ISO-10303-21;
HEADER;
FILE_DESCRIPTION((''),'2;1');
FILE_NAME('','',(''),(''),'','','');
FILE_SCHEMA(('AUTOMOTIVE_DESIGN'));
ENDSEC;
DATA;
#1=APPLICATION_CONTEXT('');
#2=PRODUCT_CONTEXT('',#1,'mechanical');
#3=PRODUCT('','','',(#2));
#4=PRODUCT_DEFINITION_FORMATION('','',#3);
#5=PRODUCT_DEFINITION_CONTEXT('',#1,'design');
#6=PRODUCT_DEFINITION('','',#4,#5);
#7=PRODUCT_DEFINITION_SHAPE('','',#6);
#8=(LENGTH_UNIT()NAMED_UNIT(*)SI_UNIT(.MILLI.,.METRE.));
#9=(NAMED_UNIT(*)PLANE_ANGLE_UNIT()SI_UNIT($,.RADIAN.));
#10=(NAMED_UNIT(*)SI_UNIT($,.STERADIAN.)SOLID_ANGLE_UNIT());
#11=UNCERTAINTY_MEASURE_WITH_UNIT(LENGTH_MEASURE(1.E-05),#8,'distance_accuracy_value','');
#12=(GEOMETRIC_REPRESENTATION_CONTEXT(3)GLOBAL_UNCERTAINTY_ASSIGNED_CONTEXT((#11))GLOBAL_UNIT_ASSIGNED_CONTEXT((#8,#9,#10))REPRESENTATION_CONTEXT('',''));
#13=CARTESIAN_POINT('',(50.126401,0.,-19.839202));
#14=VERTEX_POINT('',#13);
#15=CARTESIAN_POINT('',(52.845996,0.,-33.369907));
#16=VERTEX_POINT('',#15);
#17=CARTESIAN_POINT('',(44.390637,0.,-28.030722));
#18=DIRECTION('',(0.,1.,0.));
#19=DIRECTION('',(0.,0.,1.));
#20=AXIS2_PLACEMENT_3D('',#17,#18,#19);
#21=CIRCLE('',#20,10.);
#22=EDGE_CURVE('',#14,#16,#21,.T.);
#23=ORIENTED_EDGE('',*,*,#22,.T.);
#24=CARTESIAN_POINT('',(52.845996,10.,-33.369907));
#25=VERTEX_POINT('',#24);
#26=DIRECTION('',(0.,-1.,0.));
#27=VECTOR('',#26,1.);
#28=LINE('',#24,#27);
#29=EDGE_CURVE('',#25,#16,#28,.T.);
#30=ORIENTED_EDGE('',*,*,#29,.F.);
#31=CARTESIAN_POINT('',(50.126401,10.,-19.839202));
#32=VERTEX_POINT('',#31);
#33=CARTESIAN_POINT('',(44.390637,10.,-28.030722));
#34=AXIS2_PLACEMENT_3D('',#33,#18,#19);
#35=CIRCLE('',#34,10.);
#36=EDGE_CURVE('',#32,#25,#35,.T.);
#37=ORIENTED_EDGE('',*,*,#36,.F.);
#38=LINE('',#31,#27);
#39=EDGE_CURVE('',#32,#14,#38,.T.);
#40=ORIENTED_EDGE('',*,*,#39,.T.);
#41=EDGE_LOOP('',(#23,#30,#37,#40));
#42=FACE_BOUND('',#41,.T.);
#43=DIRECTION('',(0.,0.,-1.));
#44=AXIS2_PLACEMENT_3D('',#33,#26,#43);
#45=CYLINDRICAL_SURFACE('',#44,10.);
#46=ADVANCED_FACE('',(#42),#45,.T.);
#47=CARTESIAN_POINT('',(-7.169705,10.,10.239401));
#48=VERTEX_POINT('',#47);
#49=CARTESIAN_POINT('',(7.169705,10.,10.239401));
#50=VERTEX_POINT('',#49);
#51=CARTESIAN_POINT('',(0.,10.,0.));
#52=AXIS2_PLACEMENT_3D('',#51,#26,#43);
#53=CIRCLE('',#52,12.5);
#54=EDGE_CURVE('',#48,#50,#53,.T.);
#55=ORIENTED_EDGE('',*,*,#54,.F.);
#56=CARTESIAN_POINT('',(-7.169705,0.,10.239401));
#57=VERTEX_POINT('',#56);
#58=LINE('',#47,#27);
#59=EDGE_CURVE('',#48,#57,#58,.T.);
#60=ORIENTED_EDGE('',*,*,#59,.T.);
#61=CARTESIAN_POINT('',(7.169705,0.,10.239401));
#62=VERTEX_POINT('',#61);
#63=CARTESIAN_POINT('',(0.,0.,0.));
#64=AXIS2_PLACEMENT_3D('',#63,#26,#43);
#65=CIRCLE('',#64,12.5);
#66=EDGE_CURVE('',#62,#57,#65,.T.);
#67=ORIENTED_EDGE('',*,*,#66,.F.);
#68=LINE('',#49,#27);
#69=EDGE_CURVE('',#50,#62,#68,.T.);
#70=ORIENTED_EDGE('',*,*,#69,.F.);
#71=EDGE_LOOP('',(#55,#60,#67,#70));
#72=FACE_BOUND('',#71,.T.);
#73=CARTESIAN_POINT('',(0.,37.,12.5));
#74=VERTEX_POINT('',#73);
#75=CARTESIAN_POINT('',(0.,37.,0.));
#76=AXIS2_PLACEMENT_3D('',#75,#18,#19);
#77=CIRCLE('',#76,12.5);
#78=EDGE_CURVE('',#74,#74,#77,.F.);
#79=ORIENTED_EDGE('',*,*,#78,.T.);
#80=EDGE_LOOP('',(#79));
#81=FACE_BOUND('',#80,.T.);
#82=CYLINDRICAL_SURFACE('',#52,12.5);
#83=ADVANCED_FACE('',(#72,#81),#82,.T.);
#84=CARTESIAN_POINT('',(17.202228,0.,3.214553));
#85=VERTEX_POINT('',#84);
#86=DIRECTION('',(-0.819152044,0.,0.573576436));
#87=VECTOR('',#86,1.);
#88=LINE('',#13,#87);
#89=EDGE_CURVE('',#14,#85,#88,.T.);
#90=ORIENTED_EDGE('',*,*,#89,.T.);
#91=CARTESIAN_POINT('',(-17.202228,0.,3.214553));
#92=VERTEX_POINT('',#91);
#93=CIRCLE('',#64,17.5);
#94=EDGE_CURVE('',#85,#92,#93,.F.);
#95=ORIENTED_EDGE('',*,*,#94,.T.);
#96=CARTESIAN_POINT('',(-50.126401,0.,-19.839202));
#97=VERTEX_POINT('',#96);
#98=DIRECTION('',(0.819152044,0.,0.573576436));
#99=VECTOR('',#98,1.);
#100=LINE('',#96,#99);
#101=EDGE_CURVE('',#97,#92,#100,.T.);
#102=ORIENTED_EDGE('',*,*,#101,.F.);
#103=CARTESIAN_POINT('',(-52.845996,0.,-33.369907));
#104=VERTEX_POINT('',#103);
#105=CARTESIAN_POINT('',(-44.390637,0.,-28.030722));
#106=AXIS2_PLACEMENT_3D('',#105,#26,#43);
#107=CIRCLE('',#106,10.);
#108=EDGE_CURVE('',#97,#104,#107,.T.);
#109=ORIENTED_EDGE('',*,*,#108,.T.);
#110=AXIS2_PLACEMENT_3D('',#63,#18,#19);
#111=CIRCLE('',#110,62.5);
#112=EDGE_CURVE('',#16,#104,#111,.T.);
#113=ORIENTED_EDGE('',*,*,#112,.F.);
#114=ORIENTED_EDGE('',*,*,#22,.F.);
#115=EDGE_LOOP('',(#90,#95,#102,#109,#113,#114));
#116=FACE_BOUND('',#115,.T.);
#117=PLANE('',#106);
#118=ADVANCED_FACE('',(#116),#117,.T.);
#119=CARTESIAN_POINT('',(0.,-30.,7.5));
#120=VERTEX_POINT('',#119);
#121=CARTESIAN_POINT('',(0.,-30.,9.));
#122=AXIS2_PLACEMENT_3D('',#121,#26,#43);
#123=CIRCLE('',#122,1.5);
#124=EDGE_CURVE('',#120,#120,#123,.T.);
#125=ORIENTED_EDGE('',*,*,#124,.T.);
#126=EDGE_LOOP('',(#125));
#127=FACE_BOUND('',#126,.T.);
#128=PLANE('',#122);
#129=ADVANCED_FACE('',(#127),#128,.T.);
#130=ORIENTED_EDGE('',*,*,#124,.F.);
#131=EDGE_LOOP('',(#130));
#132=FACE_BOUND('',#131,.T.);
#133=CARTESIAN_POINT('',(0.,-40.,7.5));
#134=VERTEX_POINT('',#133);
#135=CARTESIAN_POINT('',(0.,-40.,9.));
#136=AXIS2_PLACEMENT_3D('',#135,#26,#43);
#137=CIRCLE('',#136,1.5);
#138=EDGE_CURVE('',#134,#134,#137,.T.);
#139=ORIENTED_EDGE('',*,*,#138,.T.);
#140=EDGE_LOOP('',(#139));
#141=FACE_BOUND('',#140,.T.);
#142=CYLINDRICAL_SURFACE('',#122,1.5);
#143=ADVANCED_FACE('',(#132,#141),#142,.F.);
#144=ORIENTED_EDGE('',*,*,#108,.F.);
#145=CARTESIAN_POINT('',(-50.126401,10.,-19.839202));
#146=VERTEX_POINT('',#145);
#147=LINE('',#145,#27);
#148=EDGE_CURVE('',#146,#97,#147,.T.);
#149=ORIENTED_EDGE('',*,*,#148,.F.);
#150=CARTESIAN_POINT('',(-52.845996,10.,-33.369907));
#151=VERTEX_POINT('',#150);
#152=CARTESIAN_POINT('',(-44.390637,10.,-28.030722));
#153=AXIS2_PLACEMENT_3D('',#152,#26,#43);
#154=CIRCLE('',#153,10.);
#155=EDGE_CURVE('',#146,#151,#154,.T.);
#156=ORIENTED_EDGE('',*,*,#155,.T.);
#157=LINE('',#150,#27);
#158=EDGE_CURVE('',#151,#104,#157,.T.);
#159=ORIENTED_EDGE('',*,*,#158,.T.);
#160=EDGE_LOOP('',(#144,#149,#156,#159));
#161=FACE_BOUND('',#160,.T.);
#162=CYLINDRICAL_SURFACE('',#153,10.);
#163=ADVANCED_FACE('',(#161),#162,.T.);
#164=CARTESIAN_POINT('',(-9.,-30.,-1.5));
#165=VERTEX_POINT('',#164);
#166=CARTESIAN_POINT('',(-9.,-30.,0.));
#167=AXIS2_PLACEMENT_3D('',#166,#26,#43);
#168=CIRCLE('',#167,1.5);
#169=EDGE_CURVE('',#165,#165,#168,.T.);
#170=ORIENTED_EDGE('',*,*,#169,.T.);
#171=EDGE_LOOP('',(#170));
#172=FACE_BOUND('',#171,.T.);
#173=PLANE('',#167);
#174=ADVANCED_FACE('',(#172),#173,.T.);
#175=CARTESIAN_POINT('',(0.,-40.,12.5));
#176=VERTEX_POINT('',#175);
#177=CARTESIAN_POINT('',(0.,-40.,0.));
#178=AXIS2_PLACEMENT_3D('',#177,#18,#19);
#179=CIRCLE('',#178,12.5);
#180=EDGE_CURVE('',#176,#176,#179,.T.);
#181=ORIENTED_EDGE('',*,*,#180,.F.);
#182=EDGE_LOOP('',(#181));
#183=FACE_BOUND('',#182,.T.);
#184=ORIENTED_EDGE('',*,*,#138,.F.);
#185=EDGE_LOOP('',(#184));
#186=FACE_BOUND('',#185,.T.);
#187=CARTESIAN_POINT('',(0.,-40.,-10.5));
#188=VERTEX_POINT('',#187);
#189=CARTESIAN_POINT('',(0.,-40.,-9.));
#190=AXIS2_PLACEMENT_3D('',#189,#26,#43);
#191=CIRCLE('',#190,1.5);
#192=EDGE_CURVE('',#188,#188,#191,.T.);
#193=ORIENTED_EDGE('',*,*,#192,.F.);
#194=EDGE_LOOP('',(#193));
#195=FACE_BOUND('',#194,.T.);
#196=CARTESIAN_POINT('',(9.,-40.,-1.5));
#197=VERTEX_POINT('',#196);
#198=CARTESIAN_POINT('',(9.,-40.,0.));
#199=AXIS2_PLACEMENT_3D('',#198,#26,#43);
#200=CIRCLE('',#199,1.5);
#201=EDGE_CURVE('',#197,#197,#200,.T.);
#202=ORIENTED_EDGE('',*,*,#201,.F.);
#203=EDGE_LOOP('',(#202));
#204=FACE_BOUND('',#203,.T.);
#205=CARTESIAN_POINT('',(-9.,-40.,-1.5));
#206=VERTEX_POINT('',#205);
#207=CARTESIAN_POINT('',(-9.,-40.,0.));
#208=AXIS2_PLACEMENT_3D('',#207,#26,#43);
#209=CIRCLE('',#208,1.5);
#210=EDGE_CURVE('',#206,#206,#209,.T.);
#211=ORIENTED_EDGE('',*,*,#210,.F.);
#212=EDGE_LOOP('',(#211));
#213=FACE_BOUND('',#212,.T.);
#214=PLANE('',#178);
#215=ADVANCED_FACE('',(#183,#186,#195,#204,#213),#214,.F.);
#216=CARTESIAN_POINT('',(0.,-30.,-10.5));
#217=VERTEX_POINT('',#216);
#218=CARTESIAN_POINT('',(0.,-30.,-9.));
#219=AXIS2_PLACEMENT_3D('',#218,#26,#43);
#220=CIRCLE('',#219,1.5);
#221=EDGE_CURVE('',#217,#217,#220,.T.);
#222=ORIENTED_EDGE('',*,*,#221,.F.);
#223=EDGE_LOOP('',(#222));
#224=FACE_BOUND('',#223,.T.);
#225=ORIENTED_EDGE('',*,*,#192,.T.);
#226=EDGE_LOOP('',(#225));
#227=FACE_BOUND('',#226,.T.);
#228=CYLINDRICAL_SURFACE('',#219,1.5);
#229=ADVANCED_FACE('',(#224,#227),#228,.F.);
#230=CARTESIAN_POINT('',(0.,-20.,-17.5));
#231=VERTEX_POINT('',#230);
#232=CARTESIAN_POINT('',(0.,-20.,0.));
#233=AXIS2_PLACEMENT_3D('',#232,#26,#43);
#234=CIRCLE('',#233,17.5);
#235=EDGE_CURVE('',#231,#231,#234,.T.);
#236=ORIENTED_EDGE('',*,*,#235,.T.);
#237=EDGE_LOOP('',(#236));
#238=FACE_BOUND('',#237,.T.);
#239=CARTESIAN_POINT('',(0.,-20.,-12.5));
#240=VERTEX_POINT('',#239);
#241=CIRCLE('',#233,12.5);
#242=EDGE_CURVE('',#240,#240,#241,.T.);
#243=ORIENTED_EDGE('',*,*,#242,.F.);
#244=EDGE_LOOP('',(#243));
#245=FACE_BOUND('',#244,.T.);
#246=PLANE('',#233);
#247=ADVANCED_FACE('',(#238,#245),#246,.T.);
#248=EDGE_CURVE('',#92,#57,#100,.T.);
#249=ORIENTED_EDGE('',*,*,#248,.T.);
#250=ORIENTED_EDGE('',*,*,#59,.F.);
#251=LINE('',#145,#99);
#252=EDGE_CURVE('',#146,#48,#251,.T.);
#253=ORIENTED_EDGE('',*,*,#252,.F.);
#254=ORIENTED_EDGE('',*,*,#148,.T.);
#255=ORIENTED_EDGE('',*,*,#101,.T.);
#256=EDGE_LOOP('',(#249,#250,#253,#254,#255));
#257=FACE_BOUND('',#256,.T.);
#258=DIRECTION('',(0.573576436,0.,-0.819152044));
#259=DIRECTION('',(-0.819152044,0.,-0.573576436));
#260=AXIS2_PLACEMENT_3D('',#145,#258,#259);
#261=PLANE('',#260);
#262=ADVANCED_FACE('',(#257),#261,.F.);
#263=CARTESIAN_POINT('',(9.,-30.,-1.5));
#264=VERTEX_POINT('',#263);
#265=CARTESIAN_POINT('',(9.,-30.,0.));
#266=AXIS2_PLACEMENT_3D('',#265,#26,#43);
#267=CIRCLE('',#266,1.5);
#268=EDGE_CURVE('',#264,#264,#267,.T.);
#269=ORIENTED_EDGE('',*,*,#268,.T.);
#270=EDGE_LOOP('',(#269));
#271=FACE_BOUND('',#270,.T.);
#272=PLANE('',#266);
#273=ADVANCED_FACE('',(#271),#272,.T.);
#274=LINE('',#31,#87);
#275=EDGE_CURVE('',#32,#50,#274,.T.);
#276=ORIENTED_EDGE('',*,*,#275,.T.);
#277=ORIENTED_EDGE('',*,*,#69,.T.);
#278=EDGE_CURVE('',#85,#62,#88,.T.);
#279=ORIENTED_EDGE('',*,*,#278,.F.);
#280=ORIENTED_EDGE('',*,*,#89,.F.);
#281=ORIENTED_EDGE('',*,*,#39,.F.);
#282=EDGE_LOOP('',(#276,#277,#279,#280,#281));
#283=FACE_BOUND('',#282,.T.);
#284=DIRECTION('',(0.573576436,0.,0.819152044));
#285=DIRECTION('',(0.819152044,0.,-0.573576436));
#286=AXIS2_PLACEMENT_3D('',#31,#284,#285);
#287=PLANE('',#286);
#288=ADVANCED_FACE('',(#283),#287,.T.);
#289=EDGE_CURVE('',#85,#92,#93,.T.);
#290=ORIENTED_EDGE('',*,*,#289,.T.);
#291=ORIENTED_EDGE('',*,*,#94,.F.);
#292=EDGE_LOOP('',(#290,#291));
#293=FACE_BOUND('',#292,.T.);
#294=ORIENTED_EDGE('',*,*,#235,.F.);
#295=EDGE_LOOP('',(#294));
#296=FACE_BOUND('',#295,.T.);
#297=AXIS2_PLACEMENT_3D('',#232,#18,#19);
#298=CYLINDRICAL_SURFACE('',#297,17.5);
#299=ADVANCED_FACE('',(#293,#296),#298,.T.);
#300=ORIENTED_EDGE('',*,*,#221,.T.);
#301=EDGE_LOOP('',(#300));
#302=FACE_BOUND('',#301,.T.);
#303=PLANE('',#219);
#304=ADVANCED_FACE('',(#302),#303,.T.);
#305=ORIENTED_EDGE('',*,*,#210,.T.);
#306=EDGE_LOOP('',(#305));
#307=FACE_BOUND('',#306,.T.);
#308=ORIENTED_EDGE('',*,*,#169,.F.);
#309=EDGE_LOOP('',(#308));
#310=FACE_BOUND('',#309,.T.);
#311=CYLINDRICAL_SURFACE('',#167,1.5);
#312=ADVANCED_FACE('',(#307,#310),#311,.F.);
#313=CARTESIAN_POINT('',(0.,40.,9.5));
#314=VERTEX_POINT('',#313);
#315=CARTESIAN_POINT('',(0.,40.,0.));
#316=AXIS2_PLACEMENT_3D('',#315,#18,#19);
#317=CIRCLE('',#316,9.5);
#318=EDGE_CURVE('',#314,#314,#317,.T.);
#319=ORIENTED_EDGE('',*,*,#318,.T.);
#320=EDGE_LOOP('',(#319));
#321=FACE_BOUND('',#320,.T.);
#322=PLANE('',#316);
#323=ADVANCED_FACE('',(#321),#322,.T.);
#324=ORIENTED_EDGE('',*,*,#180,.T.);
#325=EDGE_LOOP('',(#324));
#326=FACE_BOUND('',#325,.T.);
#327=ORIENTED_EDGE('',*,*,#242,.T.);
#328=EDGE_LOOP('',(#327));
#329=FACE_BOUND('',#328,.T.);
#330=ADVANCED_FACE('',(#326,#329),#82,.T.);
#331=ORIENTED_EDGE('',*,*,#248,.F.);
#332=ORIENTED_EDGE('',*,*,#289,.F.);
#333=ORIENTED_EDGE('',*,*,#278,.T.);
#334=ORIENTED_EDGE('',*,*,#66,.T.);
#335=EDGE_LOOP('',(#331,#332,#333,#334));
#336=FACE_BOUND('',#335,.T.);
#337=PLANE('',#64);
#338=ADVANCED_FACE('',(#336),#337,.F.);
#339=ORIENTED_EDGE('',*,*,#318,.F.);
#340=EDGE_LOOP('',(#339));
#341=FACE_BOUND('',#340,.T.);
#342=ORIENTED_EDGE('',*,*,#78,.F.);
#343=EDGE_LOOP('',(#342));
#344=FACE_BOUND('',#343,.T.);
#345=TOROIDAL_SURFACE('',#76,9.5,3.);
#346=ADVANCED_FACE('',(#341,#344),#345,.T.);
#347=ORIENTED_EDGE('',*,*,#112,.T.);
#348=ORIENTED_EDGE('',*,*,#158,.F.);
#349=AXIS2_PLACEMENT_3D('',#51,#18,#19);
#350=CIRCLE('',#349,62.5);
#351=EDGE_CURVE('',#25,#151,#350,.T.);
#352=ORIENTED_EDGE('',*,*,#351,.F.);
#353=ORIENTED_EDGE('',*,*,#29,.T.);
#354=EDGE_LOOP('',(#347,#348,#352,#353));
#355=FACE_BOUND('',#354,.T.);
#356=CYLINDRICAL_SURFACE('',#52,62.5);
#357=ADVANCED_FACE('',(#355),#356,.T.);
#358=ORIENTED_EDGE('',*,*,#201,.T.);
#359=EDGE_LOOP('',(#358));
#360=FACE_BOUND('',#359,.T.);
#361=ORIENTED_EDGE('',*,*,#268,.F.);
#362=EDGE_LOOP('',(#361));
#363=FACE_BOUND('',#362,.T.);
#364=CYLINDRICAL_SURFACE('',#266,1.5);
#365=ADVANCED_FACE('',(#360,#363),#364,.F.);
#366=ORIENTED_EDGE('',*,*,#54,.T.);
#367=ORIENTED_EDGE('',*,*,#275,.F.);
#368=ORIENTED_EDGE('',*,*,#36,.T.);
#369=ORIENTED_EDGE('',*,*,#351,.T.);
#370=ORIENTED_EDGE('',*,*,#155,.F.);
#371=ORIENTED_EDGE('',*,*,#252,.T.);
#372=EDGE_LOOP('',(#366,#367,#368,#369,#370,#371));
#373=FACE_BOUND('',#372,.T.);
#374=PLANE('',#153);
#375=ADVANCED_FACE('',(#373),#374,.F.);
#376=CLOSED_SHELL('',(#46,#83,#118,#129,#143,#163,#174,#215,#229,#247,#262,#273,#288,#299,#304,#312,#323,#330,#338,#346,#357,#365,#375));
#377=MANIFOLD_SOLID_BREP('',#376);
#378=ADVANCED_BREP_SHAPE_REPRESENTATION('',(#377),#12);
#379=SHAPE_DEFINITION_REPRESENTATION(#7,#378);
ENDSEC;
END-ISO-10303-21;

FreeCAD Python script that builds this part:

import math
import FreeCAD as App
import Part
import Sketcher

V = App.Vector
Q = App.Units.Quantity


def edges_at(feature, points):
    """Names of the edges that pass closest to the given points."""
    edges = feature.Shape.Edges
    near = lambda p: min(range(len(edges)), key=lambda i: edges[i].distToShape(Part.Vertex(*p))[0])
    return sorted({f"Edge{near(p) + 1}" for p in points})

doc = App.newDocument("Part")
body = doc.addObject("PartDesign::Body", "Body")

sketch1 = body.newObject("Sketcher::SketchObject", "Sketch")
sketch1.AttachmentSupport = (doc.getObject("XZ_Plane"), [""])
sketch1.MapMode = "FlatFace"
sketch1.addGeometry([
    Part.LineSegment(V(-50, -20, 0), V(-7, 10, 0)),
    Part.ArcOfCircle(Part.Circle(V(0, 0, 0), V(0, 0, 1), 13), math.radians(55), math.radians(125)),
    Part.LineSegment(V(7, 10, 0), V(50, -20, 0)),
    Part.ArcOfCircle(Part.Circle(V(44, -28, 0), V(0, 0, 1), 10), math.radians(-32), math.radians(55)),
    Part.ArcOfCircle(Part.Circle(V(0, 0, 0), V(0, 0, 1), 62), math.radians(-148), math.radians(-32)),
    Part.ArcOfCircle(Part.Circle(V(-44, -28, 0), V(0, 0, 1), 10), math.radians(125), math.radians(212)),
], False)
sketch1.addConstraint([
    Sketcher.Constraint("Tangent", 0, 2, 1, 2),
    Sketcher.Constraint("Tangent", 1, 1, 2, 1),
    Sketcher.Constraint("Tangent", 2, 2, 3, 2),
    Sketcher.Constraint("Tangent", 3, 1, 4, 2),
    Sketcher.Constraint("Tangent", 4, 1, 5, 2),
    Sketcher.Constraint("Tangent", 5, 1, 0, 1),
    Sketcher.Constraint("Coincident", 1, 3, -1, 1),
    Sketcher.Constraint("Coincident", 4, 3, -1, 1),
    Sketcher.Constraint("Equal", 3, 5),
    Sketcher.Constraint("Horizontal", 3, 3, 5, 3),
    Sketcher.Constraint("Radius", 3, Q("10 mm")),
    Sketcher.Constraint("Radius", 1, Q("12.500001 mm")),
    Sketcher.Constraint("Radius", 4, Q("62.5 mm")),
    Sketcher.Constraint("Angle", 0, Q("35.000001 deg")),
])
pad1 = body.newObject("PartDesign::Pad", "Pad")
pad1.Profile = sketch1
pad1.Length = 10
pad1.Reversed = True

sketch2 = body.newObject("Sketcher::SketchObject", "Sketch001")
sketch2.AttachmentSupport = (doc.getObject("XZ_Plane"), [""])
sketch2.MapMode = "FlatFace"
sketch2.AttachmentOffset = App.Placement(V(0, 0, -10), App.Rotation())
sketch2.addGeometry(Part.Circle(V(0, 0, 0), V(0, 0, 1), 12), False)
sketch2.addConstraint([
    Sketcher.Constraint("Coincident", 0, 3, -1, 1),
    Sketcher.Constraint("Diameter", 0, Q("25 mm")),
])
pad2 = body.newObject("PartDesign::Pad", "Pad001")
pad2.Profile = sketch2
pad2.Type = "TwoLengths"
pad2.Length = 30
pad2.Length2 = 50
pad2.Reversed = True

sketch3 = body.newObject("Sketcher::SketchObject", "Sketch002")
sketch3.AttachmentSupport = (doc.getObject("XZ_Plane"), [""])
sketch3.MapMode = "FlatFace"
sketch3.addGeometry(Part.Circle(V(0, 0, 0), V(0, 0, 1), 18), False)
sketch3.addConstraint([
    Sketcher.Constraint("Coincident", 0, 3, -1, 1),
    Sketcher.Constraint("Diameter", 0, Q("35 mm")),
])
pad3 = body.newObject("PartDesign::Pad", "Pad002")
pad3.Profile = sketch3
pad3.Length = 20
doc.recompute()

fillet = body.newObject("PartDesign::Fillet", "Fillet")
fillet.Base = (pad3, edges_at(pad3, [(0, 40, -12.5)]))
fillet.Radius = 3

sketch4 = body.newObject("Sketcher::SketchObject", "Sketch003")
sketch4.AttachmentSupport = (doc.getObject("XZ_Plane"), [""])
sketch4.MapMode = "FlatFace"
sketch4.AttachmentOffset = App.Placement(V(0, 0, 40), App.Rotation())
sketch4.addGeometry([
    Part.Circle(V(0, 9, 0), V(0, 0, 1), 1.5),
    Part.Circle(V(9, 0, 0), V(0, 0, 1), 1.5),
    Part.Circle(V(0, -9, 0), V(0, 0, 1), 1.5),
    Part.Circle(V(-9, 0, 0), V(0, 0, 1), 1.5),
], False)
sketch4.addConstraint([
    Sketcher.Constraint("Equal", 0, 1),
    Sketcher.Constraint("Equal", 1, 2),
    Sketcher.Constraint("Equal", 2, 3),
    Sketcher.Constraint("Symmetric", 0, 3, 2, 3, -1, 1),
    Sketcher.Constraint("Symmetric", 1, 3, 3, 3, -1, 1),
    Sketcher.Constraint("PointOnObject", 0, 3, -2),
    Sketcher.Constraint("PointOnObject", 1, 3, -1),
    Sketcher.Constraint("Diameter", 0, Q("3 mm")),
    Sketcher.Constraint("DistanceY", -1, 1, 0, 3, Q("9 mm")),
    Sketcher.Constraint("DistanceX", -1, 1, 1, 3, Q("9 mm")),
])
pocket1 = body.newObject("PartDesign::Pocket", "Pocket")
pocket1.Profile = sketch4
pocket1.Length = 10

doc.recompute()
